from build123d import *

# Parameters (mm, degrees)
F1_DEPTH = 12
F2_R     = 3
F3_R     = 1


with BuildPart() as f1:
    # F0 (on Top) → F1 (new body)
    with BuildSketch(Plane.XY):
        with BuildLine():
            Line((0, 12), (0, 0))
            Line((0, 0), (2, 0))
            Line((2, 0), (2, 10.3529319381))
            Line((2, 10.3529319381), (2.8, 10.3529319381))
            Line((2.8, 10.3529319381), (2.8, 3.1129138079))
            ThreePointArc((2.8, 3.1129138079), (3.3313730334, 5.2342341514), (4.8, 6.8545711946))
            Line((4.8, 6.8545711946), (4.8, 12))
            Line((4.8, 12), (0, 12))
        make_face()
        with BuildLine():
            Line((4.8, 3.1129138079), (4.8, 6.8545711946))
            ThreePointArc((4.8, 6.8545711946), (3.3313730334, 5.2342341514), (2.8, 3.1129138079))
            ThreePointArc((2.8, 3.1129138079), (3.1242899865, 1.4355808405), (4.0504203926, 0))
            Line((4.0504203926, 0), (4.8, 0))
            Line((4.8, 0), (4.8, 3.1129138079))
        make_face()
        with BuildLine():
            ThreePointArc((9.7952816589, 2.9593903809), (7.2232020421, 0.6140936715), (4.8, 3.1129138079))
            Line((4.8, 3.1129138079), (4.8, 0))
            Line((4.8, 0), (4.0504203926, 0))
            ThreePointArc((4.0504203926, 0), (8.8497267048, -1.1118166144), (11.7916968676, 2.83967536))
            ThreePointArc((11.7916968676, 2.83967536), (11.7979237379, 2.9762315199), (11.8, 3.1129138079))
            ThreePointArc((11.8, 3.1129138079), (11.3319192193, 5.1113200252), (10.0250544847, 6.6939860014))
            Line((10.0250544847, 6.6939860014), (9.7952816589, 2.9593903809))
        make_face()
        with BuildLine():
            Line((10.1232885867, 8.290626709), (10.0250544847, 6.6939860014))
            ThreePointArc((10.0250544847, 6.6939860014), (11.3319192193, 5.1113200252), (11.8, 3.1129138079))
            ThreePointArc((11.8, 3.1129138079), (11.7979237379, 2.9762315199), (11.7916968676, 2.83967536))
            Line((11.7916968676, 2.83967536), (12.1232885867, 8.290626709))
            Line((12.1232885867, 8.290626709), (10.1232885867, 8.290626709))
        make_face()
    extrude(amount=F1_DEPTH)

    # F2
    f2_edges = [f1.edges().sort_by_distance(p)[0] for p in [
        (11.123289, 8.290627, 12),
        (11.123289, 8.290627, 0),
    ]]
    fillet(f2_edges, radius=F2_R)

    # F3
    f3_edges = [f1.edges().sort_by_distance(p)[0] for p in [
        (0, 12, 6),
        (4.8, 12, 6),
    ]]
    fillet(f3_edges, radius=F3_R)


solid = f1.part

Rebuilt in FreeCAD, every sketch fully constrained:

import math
import FreeCAD as App
import Part
import Sketcher

V = App.Vector


def edges_at(feature, points):
    """Names of the edges that pass closest to the given points."""
    edges = feature.Shape.Edges
    near = lambda p: min(range(len(edges)), key=lambda i: edges[i].distToShape(Part.Vertex(*p))[0])
    return sorted({f"Edge{near(p) + 1}" for p in points})

doc = App.newDocument("Part")
params = doc.addObject("Spreadsheet::Sheet", "Params")
for row, (alias, value) in enumerate([
    ("sketch1_radius", "4.5 mm"),
    ("sketch1_radius2", "2.5 mm"),
    ("sketch1_width", "2 mm"),
    ("sketch1_height", "12 mm"),
    ("sketch1_width2", "0.8 mm"),
    ("pad1_length", "12 mm"),
    ("fillet_radius", "3 mm"),
    ("fillet2_radius", "1 mm"),
], start=1):
    params.set(f"A{row}", alias)
    params.set(f"B{row}", "=" + value)
    params.setAlias(f"B{row}", alias)

body = doc.addObject("PartDesign::Body", "Body")

# Sketch on XY plane
sketch1 = body.newObject("Sketcher::SketchObject", "Sketch")
sketch1.AttachmentSupport = (doc.getObject("XY_Plane"), [""])
sketch1.MapMode = "FlatFace"
sketch1.addGeometry([
    Part.LineSegment(V(0, 12, 0), V(0, 0, 0)),  # 0
    Part.LineSegment(V(0, 0, 0), V(2, 0, 0)),  # 1
    Part.LineSegment(V(2, 0, 0), V(2, 10.4, 0)),  # 2
    Part.LineSegment(V(2, 10.4, 0), V(2.8, 10.4, 0)),  # 3
    Part.LineSegment(V(2.8, 10.4, 0), V(2.8, 3.1, 0)),  # 4
    Part.ArcOfCircle(Part.Circle(V(7.3, 3.1, 0), V(0, 0, 1), 4.5), math.radians(180), math.radians(224)),  # 5
    Part.ArcOfCircle(Part.Circle(V(7.3, 3.1, 0), V(0, 0, 1), 4.5), math.radians(-136), math.radians(-3)),  # 6
    Part.LineSegment(V(11.8, 2.8, 0), V(12.1, 8.3, 0)),  # 7
    Part.LineSegment(V(12.1, 8.3, 0), V(10.1, 8.3, 0)),  # 8
    Part.LineSegment(V(10.1, 8.3, 0), V(10, 6.7, 0)),  # 9
    Part.LineSegment(V(10, 6.7, 0), V(9.8, 3, 0)),  # 10
    Part.ArcOfCircle(Part.Circle(V(7.3, 3.1, 0), V(0, 0, 1), 2.5), math.radians(180), math.radians(356)),  # 11
    Part.LineSegment(V(4.8, 3.1, 0), V(4.8, 12, 0)),  # 12
    Part.LineSegment(V(4.8, 12, 0), V(0, 12, 0)),  # 13
], False)
sketch1.addConstraint([
    Sketcher.Constraint("Coincident", 0, 2, 1, 1),
    Sketcher.Constraint("Coincident", 1, 2, 2, 1),
    Sketcher.Constraint("Coincident", 2, 2, 3, 1),
    Sketcher.Constraint("Coincident", 3, 2, 4, 1),
    Sketcher.Constraint("Tangent", 4, 2, 5, 1),
    Sketcher.Constraint("Tangent", 5, 2, 6, 1),
    Sketcher.Constraint("Tangent", 6, 2, 7, 1),
    Sketcher.Constraint("Coincident", 7, 2, 8, 1),
    Sketcher.Constraint("Coincident", 8, 2, 9, 1),
    Sketcher.Constraint("Coincident", 9, 2, 10, 1),
    Sketcher.Constraint("Tangent", 10, 2, 11, 2),
    Sketcher.Constraint("Tangent", 11, 1, 12, 1),
    Sketcher.Constraint("Coincident", 12, 2, 13, 1),
    Sketcher.Constraint("Coincident", 13, 2, 0, 1),
    Sketcher.Constraint("Vertical", 0),
    Sketcher.Constraint("Horizontal", 1),
    Sketcher.Constraint("Vertical", 2),
    Sketcher.Constraint("Horizontal", 3),
    Sketcher.Constraint("Vertical", 4),
    Sketcher.Constraint("Horizontal", 8),
    Sketcher.Constraint("Vertical", 12),
    Sketcher.Constraint("Horizontal", 13),
    Sketcher.Constraint("Coincident", 0, 2, -1, 1),
    Sketcher.Constraint("Coincident", 11, 3, 5, 3),
    Sketcher.Constraint("Equal", 5, 6),
    Sketcher.Constraint("PointOnObject", 5, 2, -1),
    Sketcher.Constraint("Parallel", 9, 10),
    Sketcher.Constraint("Equal", 1, 8),
    Sketcher.Constraint("Radius", 5, 4.5),
    Sketcher.Constraint("Radius", 11, 2.5),
    Sketcher.Constraint("DistanceX", 1, 1, 1, 2, 2.0),
    Sketcher.Constraint("DistanceY", 0, 2, 0, 1, 12.0),
    Sketcher.Constraint("DistanceX", 3, 1, 3, 2, 0.8),
    Sketcher.Constraint("DistanceY", 2, 1, 2, 2, 10.352932),
    Sketcher.Constraint("DistanceY", 4, 2, 4, 1, 7.240018),
    Sketcher.Constraint("Distance", 9, 1.59966),
    Sketcher.Constraint("DistanceX", -1, 1, 7, 2, 12.123289),
    Sketcher.Constraint("DistanceY", -1, 1, 10, 2, 2.95939),
])
sketch1.setExpression("Constraints[28]", "Params.sketch1_radius")
sketch1.setExpression("Constraints[29]", "Params.sketch1_radius2")
sketch1.setExpression("Constraints[30]", "Params.sketch1_width")
sketch1.setExpression("Constraints[31]", "Params.sketch1_height")
sketch1.setExpression("Constraints[32]", "Params.sketch1_width2")
pad1 = body.newObject("PartDesign::Pad", "Pad")
pad1.Profile = sketch1
pad1.setExpression("Length", "Params.pad1_length")
doc.recompute()

fillet = body.newObject("PartDesign::Fillet", "Fillet")
fillet.Base = (pad1, edges_at(pad1, [(11.123, 8.291, 12), (11.123, 8.291, 0)]))
fillet.setExpression("Radius", "Params.fillet_radius")
doc.recompute()

fillet2 = body.newObject("PartDesign::Fillet", "Fillet001")
fillet2.Base = (fillet, edges_at(fillet, [(0, 12, 6), (4.8, 12, 6)]))
fillet2.setExpression("Radius", "Params.fillet2_radius")

doc.recompute()
